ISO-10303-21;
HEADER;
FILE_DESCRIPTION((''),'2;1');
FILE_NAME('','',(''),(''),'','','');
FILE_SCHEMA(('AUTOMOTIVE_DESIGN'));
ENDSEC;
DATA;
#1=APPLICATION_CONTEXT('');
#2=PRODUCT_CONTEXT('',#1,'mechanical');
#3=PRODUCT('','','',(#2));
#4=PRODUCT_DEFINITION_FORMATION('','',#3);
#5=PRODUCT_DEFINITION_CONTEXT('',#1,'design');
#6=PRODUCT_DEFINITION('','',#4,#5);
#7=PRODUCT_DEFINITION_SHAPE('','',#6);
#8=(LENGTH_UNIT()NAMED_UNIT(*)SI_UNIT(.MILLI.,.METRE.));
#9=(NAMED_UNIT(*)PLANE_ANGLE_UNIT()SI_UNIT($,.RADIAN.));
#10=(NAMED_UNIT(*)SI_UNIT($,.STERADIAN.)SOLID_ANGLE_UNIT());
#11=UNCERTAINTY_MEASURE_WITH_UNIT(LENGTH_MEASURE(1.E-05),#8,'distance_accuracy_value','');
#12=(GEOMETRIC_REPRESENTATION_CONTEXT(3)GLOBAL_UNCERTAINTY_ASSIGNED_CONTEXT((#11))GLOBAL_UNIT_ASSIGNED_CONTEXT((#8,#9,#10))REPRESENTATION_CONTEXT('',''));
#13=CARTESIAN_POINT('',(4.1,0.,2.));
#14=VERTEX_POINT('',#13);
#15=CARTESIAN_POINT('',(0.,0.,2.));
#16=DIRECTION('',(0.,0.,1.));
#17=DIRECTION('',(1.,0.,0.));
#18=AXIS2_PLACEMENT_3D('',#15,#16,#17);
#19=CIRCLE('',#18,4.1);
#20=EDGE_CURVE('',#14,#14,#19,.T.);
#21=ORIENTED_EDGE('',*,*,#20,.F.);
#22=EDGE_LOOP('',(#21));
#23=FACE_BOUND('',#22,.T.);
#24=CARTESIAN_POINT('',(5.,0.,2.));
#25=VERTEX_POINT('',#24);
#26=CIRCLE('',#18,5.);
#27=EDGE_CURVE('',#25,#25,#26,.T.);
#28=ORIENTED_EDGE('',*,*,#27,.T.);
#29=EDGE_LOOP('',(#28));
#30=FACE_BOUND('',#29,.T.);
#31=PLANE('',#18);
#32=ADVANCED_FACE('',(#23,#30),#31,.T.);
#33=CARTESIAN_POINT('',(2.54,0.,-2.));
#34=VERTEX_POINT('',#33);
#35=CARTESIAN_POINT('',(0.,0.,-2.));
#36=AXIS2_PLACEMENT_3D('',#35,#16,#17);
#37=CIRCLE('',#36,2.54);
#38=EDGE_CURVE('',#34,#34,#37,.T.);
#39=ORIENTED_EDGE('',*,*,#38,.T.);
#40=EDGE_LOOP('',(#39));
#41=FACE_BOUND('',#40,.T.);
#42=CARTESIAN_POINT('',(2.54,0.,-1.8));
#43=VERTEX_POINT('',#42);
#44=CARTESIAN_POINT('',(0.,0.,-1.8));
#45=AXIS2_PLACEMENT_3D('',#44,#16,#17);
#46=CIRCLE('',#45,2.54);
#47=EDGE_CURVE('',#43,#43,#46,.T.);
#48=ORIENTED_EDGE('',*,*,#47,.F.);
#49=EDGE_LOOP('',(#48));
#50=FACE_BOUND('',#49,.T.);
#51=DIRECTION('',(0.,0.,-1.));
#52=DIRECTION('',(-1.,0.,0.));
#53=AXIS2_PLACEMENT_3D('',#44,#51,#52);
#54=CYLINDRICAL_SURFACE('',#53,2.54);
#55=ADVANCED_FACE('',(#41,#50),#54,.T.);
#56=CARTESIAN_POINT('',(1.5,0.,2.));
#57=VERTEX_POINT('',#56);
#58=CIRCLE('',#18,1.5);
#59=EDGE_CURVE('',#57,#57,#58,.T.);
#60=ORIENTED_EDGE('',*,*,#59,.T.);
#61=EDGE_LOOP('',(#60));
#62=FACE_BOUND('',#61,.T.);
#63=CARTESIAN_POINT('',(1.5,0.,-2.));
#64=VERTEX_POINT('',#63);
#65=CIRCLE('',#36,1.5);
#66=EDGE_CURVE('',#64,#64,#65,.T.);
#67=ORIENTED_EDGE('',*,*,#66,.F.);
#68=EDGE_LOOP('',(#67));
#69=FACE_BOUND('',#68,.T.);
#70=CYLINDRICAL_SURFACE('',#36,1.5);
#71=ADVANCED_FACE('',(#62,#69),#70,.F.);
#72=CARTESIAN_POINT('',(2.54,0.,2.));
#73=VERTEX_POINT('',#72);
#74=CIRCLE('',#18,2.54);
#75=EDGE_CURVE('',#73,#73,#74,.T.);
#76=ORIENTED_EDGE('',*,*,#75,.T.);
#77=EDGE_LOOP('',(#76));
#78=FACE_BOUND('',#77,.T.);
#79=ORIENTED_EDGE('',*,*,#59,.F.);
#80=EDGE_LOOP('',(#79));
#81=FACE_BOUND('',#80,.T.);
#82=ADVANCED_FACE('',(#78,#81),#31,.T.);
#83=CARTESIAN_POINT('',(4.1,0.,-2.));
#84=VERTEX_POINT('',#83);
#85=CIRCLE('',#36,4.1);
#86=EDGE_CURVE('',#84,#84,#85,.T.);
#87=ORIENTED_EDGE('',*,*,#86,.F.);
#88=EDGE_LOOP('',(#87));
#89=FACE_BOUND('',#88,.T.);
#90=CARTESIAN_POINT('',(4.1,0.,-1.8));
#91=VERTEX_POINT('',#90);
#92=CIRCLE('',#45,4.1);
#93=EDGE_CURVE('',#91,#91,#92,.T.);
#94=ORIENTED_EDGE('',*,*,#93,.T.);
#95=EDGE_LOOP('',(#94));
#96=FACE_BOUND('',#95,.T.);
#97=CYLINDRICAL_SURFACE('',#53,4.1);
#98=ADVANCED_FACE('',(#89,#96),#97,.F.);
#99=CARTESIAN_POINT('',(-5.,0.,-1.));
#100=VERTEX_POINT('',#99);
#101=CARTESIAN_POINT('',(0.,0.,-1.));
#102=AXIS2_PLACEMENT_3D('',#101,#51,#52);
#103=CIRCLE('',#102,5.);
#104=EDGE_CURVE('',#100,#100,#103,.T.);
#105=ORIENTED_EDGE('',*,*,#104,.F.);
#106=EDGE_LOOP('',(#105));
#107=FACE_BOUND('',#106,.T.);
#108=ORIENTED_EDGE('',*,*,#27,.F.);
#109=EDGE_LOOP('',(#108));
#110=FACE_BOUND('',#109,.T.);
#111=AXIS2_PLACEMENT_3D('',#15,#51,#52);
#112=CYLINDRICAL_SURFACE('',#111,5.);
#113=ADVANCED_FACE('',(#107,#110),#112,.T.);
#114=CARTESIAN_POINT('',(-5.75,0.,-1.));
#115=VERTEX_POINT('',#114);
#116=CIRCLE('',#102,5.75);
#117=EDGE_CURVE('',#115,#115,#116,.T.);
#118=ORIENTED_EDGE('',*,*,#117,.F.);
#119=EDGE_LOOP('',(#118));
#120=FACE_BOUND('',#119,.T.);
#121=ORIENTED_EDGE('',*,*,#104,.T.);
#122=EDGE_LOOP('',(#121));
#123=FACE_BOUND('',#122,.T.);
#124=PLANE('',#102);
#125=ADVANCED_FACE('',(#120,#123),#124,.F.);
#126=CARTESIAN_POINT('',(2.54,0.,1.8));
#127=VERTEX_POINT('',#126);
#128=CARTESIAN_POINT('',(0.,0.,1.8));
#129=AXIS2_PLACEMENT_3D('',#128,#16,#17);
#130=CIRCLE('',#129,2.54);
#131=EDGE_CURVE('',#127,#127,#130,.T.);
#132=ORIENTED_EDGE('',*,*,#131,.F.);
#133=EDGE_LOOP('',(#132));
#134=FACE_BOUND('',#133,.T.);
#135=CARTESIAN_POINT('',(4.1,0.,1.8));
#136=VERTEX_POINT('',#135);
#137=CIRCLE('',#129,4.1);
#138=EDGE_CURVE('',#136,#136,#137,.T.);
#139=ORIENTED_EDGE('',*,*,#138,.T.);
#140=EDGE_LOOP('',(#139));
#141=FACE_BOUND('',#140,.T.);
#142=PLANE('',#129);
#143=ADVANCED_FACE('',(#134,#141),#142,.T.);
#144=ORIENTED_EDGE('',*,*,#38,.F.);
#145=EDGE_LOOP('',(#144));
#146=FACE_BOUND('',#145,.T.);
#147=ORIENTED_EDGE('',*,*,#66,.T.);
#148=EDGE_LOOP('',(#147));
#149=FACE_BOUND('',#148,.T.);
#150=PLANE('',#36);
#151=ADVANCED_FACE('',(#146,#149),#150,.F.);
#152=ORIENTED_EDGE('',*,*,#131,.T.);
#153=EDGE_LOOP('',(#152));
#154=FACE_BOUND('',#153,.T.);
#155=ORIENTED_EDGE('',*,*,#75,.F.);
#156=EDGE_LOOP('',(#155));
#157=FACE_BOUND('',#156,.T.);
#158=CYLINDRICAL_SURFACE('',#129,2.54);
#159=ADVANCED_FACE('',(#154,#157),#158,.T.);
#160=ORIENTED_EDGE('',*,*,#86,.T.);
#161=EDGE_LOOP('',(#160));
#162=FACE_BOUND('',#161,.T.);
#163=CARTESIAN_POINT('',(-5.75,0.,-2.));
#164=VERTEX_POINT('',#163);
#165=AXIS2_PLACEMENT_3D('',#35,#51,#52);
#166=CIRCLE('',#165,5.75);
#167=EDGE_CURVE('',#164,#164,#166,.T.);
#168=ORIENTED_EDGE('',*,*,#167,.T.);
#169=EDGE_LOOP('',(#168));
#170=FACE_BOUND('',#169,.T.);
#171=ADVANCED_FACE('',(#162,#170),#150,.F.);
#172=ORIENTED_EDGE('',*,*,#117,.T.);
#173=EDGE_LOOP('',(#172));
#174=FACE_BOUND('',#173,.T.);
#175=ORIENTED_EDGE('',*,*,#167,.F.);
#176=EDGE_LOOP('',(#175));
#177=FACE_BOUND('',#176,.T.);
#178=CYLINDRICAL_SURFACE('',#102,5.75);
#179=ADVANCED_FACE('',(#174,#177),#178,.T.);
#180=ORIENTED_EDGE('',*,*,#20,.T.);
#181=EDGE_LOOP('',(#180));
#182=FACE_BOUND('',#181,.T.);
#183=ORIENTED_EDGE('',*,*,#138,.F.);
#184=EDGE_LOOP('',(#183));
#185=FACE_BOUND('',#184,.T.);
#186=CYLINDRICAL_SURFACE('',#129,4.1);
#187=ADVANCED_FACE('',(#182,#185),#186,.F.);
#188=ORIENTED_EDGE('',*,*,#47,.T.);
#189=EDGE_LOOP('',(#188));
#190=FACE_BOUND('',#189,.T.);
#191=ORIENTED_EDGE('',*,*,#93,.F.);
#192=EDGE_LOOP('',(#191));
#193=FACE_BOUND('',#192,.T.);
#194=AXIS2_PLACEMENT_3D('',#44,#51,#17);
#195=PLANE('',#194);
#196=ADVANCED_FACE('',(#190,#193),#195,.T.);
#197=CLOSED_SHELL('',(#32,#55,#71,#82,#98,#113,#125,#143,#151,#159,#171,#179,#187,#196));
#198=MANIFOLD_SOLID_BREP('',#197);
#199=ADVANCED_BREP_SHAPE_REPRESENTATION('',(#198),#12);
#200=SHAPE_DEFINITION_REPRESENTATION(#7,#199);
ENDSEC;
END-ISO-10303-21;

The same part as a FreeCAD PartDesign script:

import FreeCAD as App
import Part
import Sketcher

V = App.Vector

doc = App.newDocument("Part")
params = doc.addObject("Spreadsheet::Sheet", "Params")
for row, (alias, value) in enumerate([
    ("sketch1_diameter", "10 mm"),
    ("pad1_length", "4 mm"),
    ("sketch2_diameter", "11.5 mm"),
    ("pad2_length", "1 mm"),
    ("sketch3_diameter", "3 mm"),
    ("sketch4_diameter", "8.2 mm"),
    ("sketch4_diameter2", "5.08 mm"),
    ("pocket2_length", "0.2 mm"),
], start=1):
    params.set(f"A{row}", alias)
    params.set(f"B{row}", "=" + value)
    params.setAlias(f"B{row}", alias)

body = doc.addObject("PartDesign::Body", "Body")

# Sketch on XY plane
sketch1 = doc.addObject("Sketcher::SketchObject", "Sketch")
body.addObject(sketch1)
sketch1.AttachmentSupport = (doc.XY_Plane, [""])
sketch1.MapMode = "FlatFace"
sketch1.addGeometry(Part.Circle(V(0, 0, 0), V(0, 0, 1), 5), False)
sketch1.addConstraint(Sketcher.Constraint("Coincident", 0, 3, -1, 1))
sketch1.addConstraint(Sketcher.Constraint("Diameter", 0, 10.0))
sketch1.setExpression("Constraints[1]", "Params.sketch1_diameter")
pad1 = doc.addObject("PartDesign::Pad", "Pad")
body.addObject(pad1)
pad1.Profile = sketch1
pad1.setExpression("Length", "Params.pad1_length")
pad1.Midplane = True

# Sketch on XY plane
sketch2 = doc.addObject("Sketcher::SketchObject", "Sketch001")
body.addObject(sketch2)
sketch2.AttachmentSupport = (doc.XY_Plane, [""])
sketch2.MapMode = "FlatFace"
sketch2.AttachmentOffset = App.Placement(V(0, 0, -2), App.Rotation())
sketch2.addGeometry(Part.Circle(V(0, 0, 0), V(0, 0, 1), 6), False)
sketch2.addConstraint(Sketcher.Constraint("Coincident", 0, 3, -1, 1))
sketch2.addConstraint(Sketcher.Constraint("Diameter", 0, 11.5))
sketch2.setExpression("Constraints[1]", "Params.sketch2_diameter")
pad2 = doc.addObject("PartDesign::Pad", "Pad001")
body.addObject(pad2)
pad2.Profile = sketch2
pad2.setExpression("Length", "Params.pad2_length")

# Sketch on XY plane
sketch3 = doc.addObject("Sketcher::SketchObject", "Sketch002")
body.addObject(sketch3)
sketch3.AttachmentSupport = (doc.XY_Plane, [""])
sketch3.MapMode = "FlatFace"
sketch3.AttachmentOffset = App.Placement(V(0, 0, 2), App.Rotation())
sketch3.addGeometry(Part.Circle(V(0, 0, 0), V(0, 0, 1), 1.5), False)
sketch3.addConstraint(Sketcher.Constraint("Coincident", 0, 3, -1, 1))
sketch3.addConstraint(Sketcher.Constraint("Diameter", 0, 3.0))
sketch3.setExpression("Constraints[1]", "Params.sketch3_diameter")
pocket1 = doc.addObject("PartDesign::Pocket", "Pocket")
body.addObject(pocket1)
pocket1.Profile = sketch3
pocket1.Type = "ThroughAll"

# Sketch on XY plane
sketch4 = doc.addObject("Sketcher::SketchObject", "Sketch003")
body.addObject(sketch4)
sketch4.AttachmentSupport = (doc.XY_Plane, [""])
sketch4.MapMode = "FlatFace"
sketch4.AttachmentOffset = App.Placement(V(0, 0, 2), App.Rotation())
sketch4.addGeometry(Part.Circle(V(0, 0, 0), V(0, 0, 1), 4.1), False)
sketch4.addGeometry(Part.Circle(V(0, 0, 0), V(0, 0, 1), 2.5), False)
sketch4.addConstraint(Sketcher.Constraint("Coincident", 0, 3, -1, 1))
sketch4.addConstraint(Sketcher.Constraint("Coincident", 1, 3, -1, 1))
sketch4.addConstraint(Sketcher.Constraint("Diameter", 0, 8.2))
sketch4.addConstraint(Sketcher.Constraint("Diameter", 1, 5.08))
sketch4.setExpression("Constraints[2]", "Params.sketch4_diameter")
sketch4.setExpression("Constraints[3]", "Params.sketch4_diameter2")
pocket2 = doc.addObject("PartDesign::Pocket", "Pocket001")
body.addObject(pocket2)
pocket2.Profile = sketch4
pocket2.setExpression("Length", "Params.pocket2_length")
doc.recompute()

mirrored = doc.addObject("PartDesign::Mirrored", "Mirrored")
body.addObject(mirrored)
mirrored.Originals = [pocket2]
mirrored.MirrorPlane = (doc.XY_Plane, [""])
body.Tip = mirrored

doc.recompute()
